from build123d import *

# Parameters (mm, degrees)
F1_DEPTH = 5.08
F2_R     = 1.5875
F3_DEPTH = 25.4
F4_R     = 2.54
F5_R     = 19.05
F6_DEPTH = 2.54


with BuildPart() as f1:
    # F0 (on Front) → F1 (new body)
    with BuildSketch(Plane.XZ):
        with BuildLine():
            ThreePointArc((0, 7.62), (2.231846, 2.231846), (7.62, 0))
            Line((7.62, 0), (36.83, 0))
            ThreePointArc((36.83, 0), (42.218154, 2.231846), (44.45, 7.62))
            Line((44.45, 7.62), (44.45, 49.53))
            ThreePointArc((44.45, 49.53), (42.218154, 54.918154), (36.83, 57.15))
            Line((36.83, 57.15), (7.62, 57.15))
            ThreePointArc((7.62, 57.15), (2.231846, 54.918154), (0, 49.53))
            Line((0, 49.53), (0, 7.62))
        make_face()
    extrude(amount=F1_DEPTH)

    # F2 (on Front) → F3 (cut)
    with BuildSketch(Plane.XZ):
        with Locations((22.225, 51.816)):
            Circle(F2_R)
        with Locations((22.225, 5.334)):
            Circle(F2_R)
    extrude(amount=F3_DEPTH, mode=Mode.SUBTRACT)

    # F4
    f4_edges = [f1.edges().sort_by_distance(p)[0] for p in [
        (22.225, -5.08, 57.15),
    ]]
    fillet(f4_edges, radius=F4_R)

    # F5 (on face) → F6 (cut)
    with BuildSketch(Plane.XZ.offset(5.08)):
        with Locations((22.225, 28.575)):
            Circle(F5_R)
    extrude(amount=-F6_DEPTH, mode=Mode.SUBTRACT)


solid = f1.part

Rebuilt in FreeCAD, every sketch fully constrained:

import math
import FreeCAD as App
import Part
import Sketcher

V = App.Vector
Q = App.Units.Quantity


def edges_at(feature, points):
    """Names of the edges that pass closest to the given points."""
    edges = feature.Shape.Edges
    near = lambda p: min(range(len(edges)), key=lambda i: edges[i].distToShape(Part.Vertex(*p))[0])
    return sorted({f"Edge{near(p) + 1}" for p in points})

doc = App.newDocument("Part")
body = doc.addObject("PartDesign::Body", "Body")

sketch1 = body.newObject("Sketcher::SketchObject", "Sketch")
sketch1.AttachmentSupport = (doc.getObject("XZ_Plane"), [""])
sketch1.MapMode = "FlatFace"
sketch1.addGeometry(Part.ArcOfCircle(Part.Circle(V(8, 8, 0), V(0, 0, 1), 8), math.radians(180), math.radians(270)), False)
sketch1.addGeometry(Part.LineSegment(V(8, 0, 0), V(37, 0, 0)), False)
sketch1.addGeometry(Part.ArcOfCircle(Part.Circle(V(37, 8, 0), V(0, 0, 1), 8), math.radians(-90), math.radians(0)), False)
sketch1.addGeometry(Part.LineSegment(V(44, 8, 0), V(44, 50, 0)), False)
sketch1.addGeometry(Part.ArcOfCircle(Part.Circle(V(37, 50, 0), V(0, 0, 1), 8), math.radians(0), math.radians(90)), False)
sketch1.addGeometry(Part.LineSegment(V(37, 57, 0), V(8, 57, 0)), False)
sketch1.addGeometry(Part.ArcOfCircle(Part.Circle(V(8, 50, 0), V(0, 0, 1), 8), math.radians(90), math.radians(180)), False)
sketch1.addGeometry(Part.LineSegment(V(0, 50, 0), V(0, 8, 0)), False)
sketch1.addConstraint(Sketcher.Constraint("Tangent", 0, 2, 1, 1))
sketch1.addConstraint(Sketcher.Constraint("Tangent", 1, 2, 2, 1))
sketch1.addConstraint(Sketcher.Constraint("Tangent", 2, 2, 3, 1))
sketch1.addConstraint(Sketcher.Constraint("Tangent", 3, 2, 4, 1))
sketch1.addConstraint(Sketcher.Constraint("Tangent", 4, 2, 5, 1))
sketch1.addConstraint(Sketcher.Constraint("Tangent", 5, 2, 6, 1))
sketch1.addConstraint(Sketcher.Constraint("Tangent", 6, 2, 7, 1))
sketch1.addConstraint(Sketcher.Constraint("Tangent", 7, 2, 0, 1))
sketch1.addConstraint(Sketcher.Constraint("Horizontal", 1))
sketch1.addConstraint(Sketcher.Constraint("Vertical", 3))
sketch1.addConstraint(Sketcher.Constraint("Horizontal", 5))
sketch1.addConstraint(Sketcher.Constraint("Vertical", 7))
sketch1.addConstraint(Sketcher.Constraint("Equal", 0, 2))
sketch1.addConstraint(Sketcher.Constraint("Equal", 2, 4))
sketch1.addConstraint(Sketcher.Constraint("Equal", 4, 6))
sketch1.addConstraint(Sketcher.Constraint("PointOnObject", 0, 2, -1))
sketch1.addConstraint(Sketcher.Constraint("PointOnObject", 6, 2, -2))
sketch1.addConstraint(Sketcher.Constraint("Radius", 0, Q("0.3 in")))
sketch1.addConstraint(Sketcher.Constraint("DistanceX", 1, 1, 1, 2, Q("1.15 in")))
sketch1.addConstraint(Sketcher.Constraint("DistanceY", 3, 1, 3, 2, Q("1.65 in")))
pad1 = body.newObject("PartDesign::Pad", "Pad")
pad1.Profile = sketch1
pad1.Length = Q("0.2 in")

sketch2 = body.newObject("Sketcher::SketchObject", "Sketch001")
sketch2.AttachmentSupport = (doc.getObject("XZ_Plane"), [""])
sketch2.MapMode = "FlatFace"
sketch2.addGeometry(Part.Circle(V(22.2, 51.8, 0), V(0, 0, 1), 1.6), False)
sketch2.addGeometry(Part.Circle(V(22.2, 5.3, 0), V(0, 0, 1), 1.6), False)
sketch2.addConstraint(Sketcher.Constraint("Equal", 0, 1))
sketch2.addConstraint(Sketcher.Constraint("Vertical", 0, 3, 1, 3))
sketch2.addConstraint(Sketcher.Constraint("Diameter", 0, Q("0.125 in")))
sketch2.addConstraint(Sketcher.Constraint("DistanceY", -1, 1, 0, 3, Q("2.04 in")))
sketch2.addConstraint(Sketcher.Constraint("DistanceY", -1, 1, 1, 3, Q("0.21 in")))
sketch2.addConstraint(Sketcher.Constraint("DistanceX", -1, 1, 0, 3, Q("0.875 in")))
pocket1 = body.newObject("PartDesign::Pocket", "Pocket")
pocket1.Profile = sketch2
pocket1.Length = Q("1 in")
pocket1.Reversed = True
doc.recompute()

fillet = body.newObject("PartDesign::Fillet", "Fillet")
fillet.Base = (pocket1, edges_at(pocket1, [(22.225, -5.08, 57.15)]))
fillet.Radius = Q("0.1 in")

sketch3 = body.newObject("Sketcher::SketchObject", "Sketch002")
sketch3.AttachmentSupport = (doc.getObject("XZ_Plane"), [""])
sketch3.MapMode = "FlatFace"
sketch3.AttachmentOffset = App.Placement(V(0, 0, 0.2 * 25.4), App.Rotation())
sketch3.addGeometry(Part.Circle(V(22, 29, 0), V(0, 0, 1), 19), False)
sketch3.addConstraint(Sketcher.Constraint("Diameter", 0, Q("1.5 in")))
sketch3.addConstraint(Sketcher.Constraint("DistanceX", -1, 1, 0, 3, Q("0.875 in")))
sketch3.addConstraint(Sketcher.Constraint("DistanceY", -1, 1, 0, 3, Q("1.125 in")))
pocket2 = body.newObject("PartDesign::Pocket", "Pocket001")
pocket2.Profile = sketch3
pocket2.Length = Q("0.1 in")

doc.recompute()
